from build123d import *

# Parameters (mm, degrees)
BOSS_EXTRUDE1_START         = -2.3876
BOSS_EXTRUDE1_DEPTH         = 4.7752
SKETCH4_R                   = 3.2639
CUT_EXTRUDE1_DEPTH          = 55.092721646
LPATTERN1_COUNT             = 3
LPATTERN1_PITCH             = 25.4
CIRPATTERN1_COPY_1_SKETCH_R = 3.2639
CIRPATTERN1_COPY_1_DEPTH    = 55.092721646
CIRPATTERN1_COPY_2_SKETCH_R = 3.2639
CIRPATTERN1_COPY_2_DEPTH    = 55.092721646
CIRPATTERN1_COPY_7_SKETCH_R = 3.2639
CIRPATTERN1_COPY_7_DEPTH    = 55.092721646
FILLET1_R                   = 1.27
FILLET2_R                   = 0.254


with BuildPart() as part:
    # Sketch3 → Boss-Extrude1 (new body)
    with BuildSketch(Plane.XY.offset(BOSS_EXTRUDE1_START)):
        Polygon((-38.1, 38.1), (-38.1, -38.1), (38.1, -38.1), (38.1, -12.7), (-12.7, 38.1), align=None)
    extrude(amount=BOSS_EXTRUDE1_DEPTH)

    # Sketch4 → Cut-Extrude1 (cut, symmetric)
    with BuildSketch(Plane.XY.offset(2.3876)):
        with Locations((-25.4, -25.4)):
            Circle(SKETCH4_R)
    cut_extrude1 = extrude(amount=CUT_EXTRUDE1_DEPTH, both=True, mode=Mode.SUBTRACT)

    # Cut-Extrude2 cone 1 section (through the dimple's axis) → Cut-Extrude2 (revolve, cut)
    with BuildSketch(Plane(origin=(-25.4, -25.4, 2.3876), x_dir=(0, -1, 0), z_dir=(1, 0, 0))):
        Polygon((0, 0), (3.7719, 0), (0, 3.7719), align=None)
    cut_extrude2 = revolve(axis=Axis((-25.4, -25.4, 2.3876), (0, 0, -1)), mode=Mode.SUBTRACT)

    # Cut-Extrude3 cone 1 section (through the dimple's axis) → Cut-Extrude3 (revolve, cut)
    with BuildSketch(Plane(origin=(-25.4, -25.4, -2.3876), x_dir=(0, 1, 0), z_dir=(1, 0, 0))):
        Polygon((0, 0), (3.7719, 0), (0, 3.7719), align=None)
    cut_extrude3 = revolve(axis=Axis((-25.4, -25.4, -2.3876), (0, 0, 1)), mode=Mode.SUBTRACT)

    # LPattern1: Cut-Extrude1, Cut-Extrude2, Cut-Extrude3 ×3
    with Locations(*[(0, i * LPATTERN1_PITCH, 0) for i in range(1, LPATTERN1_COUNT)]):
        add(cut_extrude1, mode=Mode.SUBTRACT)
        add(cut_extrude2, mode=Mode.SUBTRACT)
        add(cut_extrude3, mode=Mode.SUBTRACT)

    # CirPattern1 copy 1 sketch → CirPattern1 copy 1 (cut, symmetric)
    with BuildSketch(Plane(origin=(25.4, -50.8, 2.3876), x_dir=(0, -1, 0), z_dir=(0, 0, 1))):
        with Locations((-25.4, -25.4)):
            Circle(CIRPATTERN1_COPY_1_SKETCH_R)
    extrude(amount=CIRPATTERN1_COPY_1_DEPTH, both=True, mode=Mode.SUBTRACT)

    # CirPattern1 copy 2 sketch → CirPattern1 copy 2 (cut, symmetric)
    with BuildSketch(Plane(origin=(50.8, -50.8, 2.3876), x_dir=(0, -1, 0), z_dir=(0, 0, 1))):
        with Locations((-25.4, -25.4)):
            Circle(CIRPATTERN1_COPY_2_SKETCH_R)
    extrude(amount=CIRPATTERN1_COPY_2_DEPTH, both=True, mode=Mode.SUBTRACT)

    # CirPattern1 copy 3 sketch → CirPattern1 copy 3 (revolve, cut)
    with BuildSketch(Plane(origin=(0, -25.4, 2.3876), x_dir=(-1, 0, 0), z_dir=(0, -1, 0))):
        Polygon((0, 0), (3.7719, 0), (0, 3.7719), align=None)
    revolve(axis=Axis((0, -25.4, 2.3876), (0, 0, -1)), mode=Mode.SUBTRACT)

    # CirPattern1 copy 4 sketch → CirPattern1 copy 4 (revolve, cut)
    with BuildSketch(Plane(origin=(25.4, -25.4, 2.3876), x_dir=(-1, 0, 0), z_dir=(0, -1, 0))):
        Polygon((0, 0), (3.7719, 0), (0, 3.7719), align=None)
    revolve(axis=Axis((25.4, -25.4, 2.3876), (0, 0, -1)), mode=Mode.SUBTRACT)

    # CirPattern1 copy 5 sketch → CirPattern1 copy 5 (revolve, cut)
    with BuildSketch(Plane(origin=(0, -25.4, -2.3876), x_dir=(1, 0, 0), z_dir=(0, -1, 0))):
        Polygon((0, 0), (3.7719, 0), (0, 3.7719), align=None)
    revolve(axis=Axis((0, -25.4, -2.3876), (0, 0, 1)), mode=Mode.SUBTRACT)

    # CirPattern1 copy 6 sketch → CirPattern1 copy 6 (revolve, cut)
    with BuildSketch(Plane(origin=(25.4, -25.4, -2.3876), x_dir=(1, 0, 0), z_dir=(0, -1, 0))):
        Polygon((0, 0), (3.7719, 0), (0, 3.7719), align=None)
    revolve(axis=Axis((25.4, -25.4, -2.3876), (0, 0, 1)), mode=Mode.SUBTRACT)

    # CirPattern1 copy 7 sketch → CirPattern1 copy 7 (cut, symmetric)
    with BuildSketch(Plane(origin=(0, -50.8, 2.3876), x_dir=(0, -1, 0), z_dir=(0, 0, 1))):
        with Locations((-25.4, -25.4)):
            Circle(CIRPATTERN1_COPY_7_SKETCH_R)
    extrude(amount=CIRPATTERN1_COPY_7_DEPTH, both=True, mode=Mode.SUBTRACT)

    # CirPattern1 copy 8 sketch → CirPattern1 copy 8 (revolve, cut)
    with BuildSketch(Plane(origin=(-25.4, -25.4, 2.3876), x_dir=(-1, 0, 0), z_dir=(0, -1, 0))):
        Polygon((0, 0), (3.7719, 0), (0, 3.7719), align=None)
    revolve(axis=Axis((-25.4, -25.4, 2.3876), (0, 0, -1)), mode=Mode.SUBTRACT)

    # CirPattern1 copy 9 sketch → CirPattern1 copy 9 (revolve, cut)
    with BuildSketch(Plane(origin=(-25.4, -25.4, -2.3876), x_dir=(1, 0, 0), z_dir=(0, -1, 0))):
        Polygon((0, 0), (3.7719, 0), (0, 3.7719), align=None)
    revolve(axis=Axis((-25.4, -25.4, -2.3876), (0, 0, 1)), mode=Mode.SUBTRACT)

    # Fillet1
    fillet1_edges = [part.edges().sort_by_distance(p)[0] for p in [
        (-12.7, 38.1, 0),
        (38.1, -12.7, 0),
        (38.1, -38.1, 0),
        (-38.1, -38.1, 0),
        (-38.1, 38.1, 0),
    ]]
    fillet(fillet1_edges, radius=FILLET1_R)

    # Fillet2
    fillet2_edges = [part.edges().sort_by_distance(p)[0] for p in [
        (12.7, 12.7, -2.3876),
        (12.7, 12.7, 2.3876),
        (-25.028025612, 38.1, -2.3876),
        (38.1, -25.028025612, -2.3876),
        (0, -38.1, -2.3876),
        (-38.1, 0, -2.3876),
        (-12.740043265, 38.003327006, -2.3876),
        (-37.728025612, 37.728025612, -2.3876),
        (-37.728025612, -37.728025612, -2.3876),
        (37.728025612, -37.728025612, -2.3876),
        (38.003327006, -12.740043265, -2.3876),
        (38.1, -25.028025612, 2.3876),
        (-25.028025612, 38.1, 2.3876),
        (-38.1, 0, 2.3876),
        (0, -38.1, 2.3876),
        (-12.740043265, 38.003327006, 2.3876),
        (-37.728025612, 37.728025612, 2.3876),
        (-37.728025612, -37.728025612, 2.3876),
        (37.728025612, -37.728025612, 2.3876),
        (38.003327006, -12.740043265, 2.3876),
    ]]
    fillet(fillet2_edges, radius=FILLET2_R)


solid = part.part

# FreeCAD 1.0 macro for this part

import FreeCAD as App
import Part
import Sketcher

V = App.Vector
Q = App.Units.Quantity


def edges_at(feature, points):
    """Names of the edges that pass closest to the given points."""
    edges = feature.Shape.Edges
    near = lambda p: min(range(len(edges)), key=lambda i: edges[i].distToShape(Part.Vertex(*p))[0])
    return sorted({f"Edge{near(p) + 1}" for p in points})

doc = App.newDocument("Part")
body = doc.addObject("PartDesign::Body", "Body")

sketch1 = body.newObject("Sketcher::SketchObject", "Sketch")
sketch1.AttachmentSupport = (doc.getObject("XY_Plane"), [""])
sketch1.MapMode = "FlatFace"
sketch1.AttachmentOffset = App.Placement(V(0, 0, -0.094 * 25.4), App.Rotation())
sketch1.addGeometry([
    Part.LineSegment(V(-38, 38, 0), V(-38, -38, 0)),
    Part.LineSegment(V(-38, -38, 0), V(38, -38, 0)),
    Part.LineSegment(V(38, -38, 0), V(38, -13, 0)),
    Part.LineSegment(V(38, -13, 0), V(-13, 38, 0)),
    Part.LineSegment(V(-13, 38, 0), V(-38, 38, 0)),
], False)
sketch1.addConstraint([
    Sketcher.Constraint("Coincident", 0, 2, 1, 1),
    Sketcher.Constraint("Coincident", 1, 2, 2, 1),
    Sketcher.Constraint("Coincident", 2, 2, 3, 1),
    Sketcher.Constraint("Coincident", 3, 2, 4, 1),
    Sketcher.Constraint("Coincident", 4, 2, 0, 1),
    Sketcher.Constraint("Vertical", 0),
    Sketcher.Constraint("Horizontal", 1),
    Sketcher.Constraint("Vertical", 2),
    Sketcher.Constraint("Horizontal", 4),
    Sketcher.Constraint("Symmetric", 1, 2, 4, 2, -1, 1),
    Sketcher.Constraint("Equal", 1, 0),
    Sketcher.Constraint("Equal", 4, 2),
    Sketcher.Constraint("DistanceX", 1, 1, 1, 2, Q("3 in")),
    Sketcher.Constraint("DistanceX", 4, 2, 4, 1, Q("1 in")),
])
pad1 = body.newObject("PartDesign::Pad", "Pad")
pad1.Profile = sketch1
pad1.Length = Q("0.188 in")

sketch2 = body.newObject("Sketcher::SketchObject", "Sketch001")
sketch2.AttachmentSupport = (doc.getObject("XY_Plane"), [""])
sketch2.MapMode = "FlatFace"
sketch2.AttachmentOffset = App.Placement(V(0, 0, 0.094 * 25.4), App.Rotation())
sketch2.addGeometry(Part.Circle(V(-25.4, -25.4, 0), V(0, 0, 1), 3.3), False)
sketch2.addConstraint([
    Sketcher.Constraint("Diameter", 0, Q("0.257 in")),
    Sketcher.Constraint("DistanceX", 0, 3, -1, 1, Q("1 in")),
    Sketcher.Constraint("DistanceY", 0, 3, -1, 1, Q("1 in")),
])
pocket1 = body.newObject("PartDesign::Pocket", "Pocket")
pocket1.Profile = sketch2
pocket1.Length = 110.185443
pocket1.Midplane = True

sketch3 = body.newObject("Sketcher::SketchObject", "Sketch002")
sketch3.AttachmentSupport = (doc.getObject("YZ_Plane"), [""])
sketch3.MapMode = "FlatFace"
sketch3.AttachmentOffset = App.Placement(V(0, 0, -1 * 25.4), App.Rotation())
sketch3.addGeometry([
    Part.LineSegment(V(-25.4, 2.4, 0), V(-29.2, 2.4, 0)),
    Part.LineSegment(V(-29.2, 2.4, 0), V(-25.4, -1.4, 0)),
    Part.LineSegment(V(-25.4, -1.4, 0), V(-25.4, 2.4, 0)),
], False)
sketch3.addGeometry(Part.LineSegment(V(-25.4, 2.4, 0), V(-25.4, -1.4, 0)), True)
sketch3.addConstraint([
    Sketcher.Constraint("Coincident", 0, 2, 1, 1),
    Sketcher.Constraint("Coincident", 1, 2, 2, 1),
    Sketcher.Constraint("Coincident", 2, 2, 0, 1),
    Sketcher.Constraint("Horizontal", 0),
    Sketcher.Constraint("Vertical", 2),
    Sketcher.Constraint("Vertical", 3),
    Sketcher.Constraint("Coincident", 3, 1, 2, 2),
    Sketcher.Constraint("Equal", 0, 2),
    Sketcher.Constraint("Equal", 2, 3),
    Sketcher.Constraint("DistanceX", 1, 2, -1, 1, Q("1 in")),
    Sketcher.Constraint("DistanceX", 0, 2, 0, 1, Q("0.1485 in")),
    Sketcher.Constraint("DistanceY", -1, 1, 0, 2, Q("0.094 in")),
])
groove = body.newObject("PartDesign::Groove", "Groove")
groove.Profile = sketch3
groove.ReferenceAxis = (sketch3, ["Axis0"])
groove.Angle = 360

sketch4 = body.newObject("Sketcher::SketchObject", "Sketch003")
sketch4.AttachmentSupport = (doc.getObject("YZ_Plane"), [""])
sketch4.MapMode = "FlatFace"
sketch4.AttachmentOffset = App.Placement(V(0, 0, -1 * 25.4), App.Rotation())
sketch4.addGeometry([
    Part.LineSegment(V(-25.4, -2.4, 0), V(-21.6, -2.4, 0)),
    Part.LineSegment(V(-21.6, -2.4, 0), V(-25.4, 1.4, 0)),
    Part.LineSegment(V(-25.4, 1.4, 0), V(-25.4, -2.4, 0)),
], False)
sketch4.addGeometry(Part.LineSegment(V(-25.4, -2.4, 0), V(-25.4, 1.4, 0)), True)
sketch4.addConstraint([
    Sketcher.Constraint("Coincident", 0, 2, 1, 1),
    Sketcher.Constraint("Coincident", 1, 2, 2, 1),
    Sketcher.Constraint("Coincident", 2, 2, 0, 1),
    Sketcher.Constraint("Horizontal", 0),
    Sketcher.Constraint("Vertical", 2),
    Sketcher.Constraint("Vertical", 3),
    Sketcher.Constraint("Coincident", 3, 1, 2, 2),
    Sketcher.Constraint("Equal", 0, 2),
    Sketcher.Constraint("Equal", 2, 3),
    Sketcher.Constraint("DistanceX", 1, 2, -1, 1, Q("1 in")),
    Sketcher.Constraint("DistanceX", 0, 1, 0, 2, Q("0.1485 in")),
    Sketcher.Constraint("DistanceY", 0, 2, -1, 1, Q("0.094 in")),
])
groove2 = body.newObject("PartDesign::Groove", "Groove001")
groove2.Profile = sketch4
groove2.ReferenceAxis = (sketch4, ["Axis0"])
groove2.Angle = 360
doc.recompute()

linearpattern = body.newObject("PartDesign::LinearPattern", "LinearPattern")
linearpattern.Originals = [pocket1, groove, groove2]
linearpattern.Direction = (doc.getObject("Y_Axis"), [""])
linearpattern.Mode = "offset"
linearpattern.Offset = Q("1 in")
linearpattern.Occurrences = 3
body.Tip = linearpattern

sketch5 = body.newObject("Sketcher::SketchObject", "Sketch004")
sketch5.AttachmentSupport = (doc.getObject("XY_Plane"), [""])
sketch5.MapMode = "FlatFace"
sketch5.AttachmentOffset = App.Placement(V(0, 0, 0.094 * 25.4), App.Rotation())
sketch5.addGeometry(Part.Circle(V(0, -25.4, 0), V(0, 0, 1), 3.3), False)
sketch5.addConstraint([
    Sketcher.Constraint("PointOnObject", 0, 3, -2),
    Sketcher.Constraint("Diameter", 0, Q("0.257 in")),
    Sketcher.Constraint("DistanceY", 0, 3, -1, 1, Q("1 in")),
])
pocket2 = body.newObject("PartDesign::Pocket", "Pocket001")
pocket2.Profile = sketch5
pocket2.Length = 110.185443
pocket2.Midplane = True

sketch6 = body.newObject("Sketcher::SketchObject", "Sketch005")
sketch6.AttachmentSupport = (doc.getObject("XY_Plane"), [""])
sketch6.MapMode = "FlatFace"
sketch6.AttachmentOffset = App.Placement(V(0, 0, 0.094 * 25.4), App.Rotation())
sketch6.addGeometry(Part.Circle(V(25.4, -25.4, 0), V(0, 0, 1), 3.3), False)
sketch6.addConstraint([
    Sketcher.Constraint("Diameter", 0, Q("0.257 in")),
    Sketcher.Constraint("DistanceX", -1, 1, 0, 3, Q("1 in")),
    Sketcher.Constraint("DistanceY", 0, 3, -1, 1, Q("1 in")),
])
pocket3 = body.newObject("PartDesign::Pocket", "Pocket002")
pocket3.Profile = sketch6
pocket3.Length = 110.185443
pocket3.Midplane = True

sketch7 = body.newObject("Sketcher::SketchObject", "Sketch006")
sketch7.AttachmentSupport = (doc.getObject("XZ_Plane"), [""])
sketch7.MapMode = "FlatFace"
sketch7.AttachmentOffset = App.Placement(V(0, 0, 1 * 25.4), App.Rotation())
sketch7.addGeometry([
    Part.LineSegment(V(0, 2.4, 0), V(-3.8, 2.4, 0)),
    Part.LineSegment(V(-3.8, 2.4, 0), V(0, -1.4, 0)),
    Part.LineSegment(V(0, -1.4, 0), V(0, 2.4, 0)),
], False)
sketch7.addConstraint([
    Sketcher.Constraint("Coincident", 0, 2, 1, 1),
    Sketcher.Constraint("Coincident", 1, 2, 2, 1),
    Sketcher.Constraint("Coincident", 2, 2, 0, 1),
    Sketcher.Constraint("Horizontal", 0),
    Sketcher.Constraint("Vertical", 2),
    Sketcher.Constraint("PointOnObject", 1, 2, -2),
    Sketcher.Constraint("Equal", 0, 2),
    Sketcher.Constraint("DistanceX", 0, 2, 0, 1, Q("0.1485 in")),
    Sketcher.Constraint("DistanceY", -1, 1, 0, 2, Q("0.094 in")),
])
groove3 = body.newObject("PartDesign::Groove", "Groove002")
groove3.Profile = sketch7
groove3.ReferenceAxis = (sketch7, ["V_Axis"])
groove3.Angle = 360

sketch8 = body.newObject("Sketcher::SketchObject", "Sketch007")
sketch8.AttachmentSupport = (doc.getObject("XZ_Plane"), [""])
sketch8.MapMode = "FlatFace"
sketch8.AttachmentOffset = App.Placement(V(0, 0, 1 * 25.4), App.Rotation())
sketch8.addGeometry([
    Part.LineSegment(V(25.4, 2.4, 0), V(21.6, 2.4, 0)),
    Part.LineSegment(V(21.6, 2.4, 0), V(25.4, -1.4, 0)),
    Part.LineSegment(V(25.4, -1.4, 0), V(25.4, 2.4, 0)),
], False)
sketch8.addGeometry(Part.LineSegment(V(25.4, 2.4, 0), V(25.4, -1.4, 0)), True)
sketch8.addConstraint([
    Sketcher.Constraint("Coincident", 0, 2, 1, 1),
    Sketcher.Constraint("Coincident", 1, 2, 2, 1),
    Sketcher.Constraint("Coincident", 2, 2, 0, 1),
    Sketcher.Constraint("Horizontal", 0),
    Sketcher.Constraint("Vertical", 2),
    Sketcher.Constraint("Vertical", 3),
    Sketcher.Constraint("Coincident", 3, 1, 2, 2),
    Sketcher.Constraint("Equal", 0, 2),
    Sketcher.Constraint("Equal", 2, 3),
    Sketcher.Constraint("DistanceX", -1, 1, 1, 2, Q("1 in")),
    Sketcher.Constraint("DistanceX", 0, 2, 0, 1, Q("0.1485 in")),
    Sketcher.Constraint("DistanceY", -1, 1, 0, 2, Q("0.094 in")),
])
groove4 = body.newObject("PartDesign::Groove", "Groove003")
groove4.Profile = sketch8
groove4.ReferenceAxis = (sketch8, ["Axis0"])
groove4.Angle = 360

sketch9 = body.newObject("Sketcher::SketchObject", "Sketch008")
sketch9.AttachmentSupport = (doc.getObject("XZ_Plane"), [""])
sketch9.MapMode = "FlatFace"
sketch9.AttachmentOffset = App.Placement(V(0, 0, 1 * 25.4), App.Rotation())
sketch9.addGeometry([
    Part.LineSegment(V(0, -2.4, 0), V(3.8, -2.4, 0)),
    Part.LineSegment(V(3.8, -2.4, 0), V(0, 1.4, 0)),
    Part.LineSegment(V(0, 1.4, 0), V(0, -2.4, 0)),
], False)
sketch9.addConstraint([
    Sketcher.Constraint("Coincident", 0, 2, 1, 1),
    Sketcher.Constraint("Coincident", 1, 2, 2, 1),
    Sketcher.Constraint("Coincident", 2, 2, 0, 1),
    Sketcher.Constraint("Horizontal", 0),
    Sketcher.Constraint("Vertical", 2),
    Sketcher.Constraint("PointOnObject", 1, 2, -2),
    Sketcher.Constraint("Equal", 0, 2),
    Sketcher.Constraint("DistanceX", 0, 1, 0, 2, Q("0.1485 in")),
    Sketcher.Constraint("DistanceY", 0, 2, -1, 1, Q("0.094 in")),
])
groove5 = body.newObject("PartDesign::Groove", "Groove004")
groove5.Profile = sketch9
groove5.ReferenceAxis = (sketch9, ["V_Axis"])
groove5.Angle = 360

sketch10 = body.newObject("Sketcher::SketchObject", "Sketch009")
sketch10.AttachmentSupport = (doc.getObject("XZ_Plane"), [""])
sketch10.MapMode = "FlatFace"
sketch10.AttachmentOffset = App.Placement(V(0, 0, 1 * 25.4), App.Rotation())
sketch10.addGeometry([
    Part.LineSegment(V(25.4, -2.4, 0), V(29.2, -2.4, 0)),
    Part.LineSegment(V(29.2, -2.4, 0), V(25.4, 1.4, 0)),
    Part.LineSegment(V(25.4, 1.4, 0), V(25.4, -2.4, 0)),
], False)
sketch10.addGeometry(Part.LineSegment(V(25.4, -2.4, 0), V(25.4, 1.4, 0)), True)
sketch10.addConstraint([
    Sketcher.Constraint("Coincident", 0, 2, 1, 1),
    Sketcher.Constraint("Coincident", 1, 2, 2, 1),
    Sketcher.Constraint("Coincident", 2, 2, 0, 1),
    Sketcher.Constraint("Horizontal", 0),
    Sketcher.Constraint("Vertical", 2),
    Sketcher.Constraint("Vertical", 3),
    Sketcher.Constraint("Coincident", 3, 1, 2, 2),
    Sketcher.Constraint("Equal", 0, 2),
    Sketcher.Constraint("Equal", 2, 3),
    Sketcher.Constraint("DistanceX", -1, 1, 1, 2, Q("1 in")),
    Sketcher.Constraint("DistanceX", 0, 1, 0, 2, Q("0.1485 in")),
    Sketcher.Constraint("DistanceY", 0, 2, -1, 1, Q("0.094 in")),
])
groove6 = body.newObject("PartDesign::Groove", "Groove005")
groove6.Profile = sketch10
groove6.ReferenceAxis = (sketch10, ["Axis0"])
groove6.Angle = 360

sketch11 = body.newObject("Sketcher::SketchObject", "Sketch010")
sketch11.AttachmentSupport = (doc.getObject("XY_Plane"), [""])
sketch11.MapMode = "FlatFace"
sketch11.AttachmentOffset = App.Placement(V(0, 0, 0.094 * 25.4), App.Rotation())
sketch11.addGeometry(Part.Circle(V(-25.4, -25.4, 0), V(0, 0, 1), 3.3), False)
sketch11.addConstraint([
    Sketcher.Constraint("Diameter", 0, Q("0.257 in")),
    Sketcher.Constraint("DistanceX", 0, 3, -1, 1, Q("1 in")),
    Sketcher.Constraint("DistanceY", 0, 3, -1, 1, Q("1 in")),
])
pocket4 = body.newObject("PartDesign::Pocket", "Pocket003")
pocket4.Profile = sketch11
pocket4.Length = 110.185443
pocket4.Midplane = True

sketch12 = body.newObject("Sketcher::SketchObject", "Sketch011")
sketch12.AttachmentSupport = (doc.getObject("XZ_Plane"), [""])
sketch12.MapMode = "FlatFace"
sketch12.AttachmentOffset = App.Placement(V(0, 0, 1 * 25.4), App.Rotation())
sketch12.addGeometry([
    Part.LineSegment(V(-25.4, 2.4, 0), V(-29.2, 2.4, 0)),
    Part.LineSegment(V(-29.2, 2.4, 0), V(-25.4, -1.4, 0)),
    Part.LineSegment(V(-25.4, -1.4, 0), V(-25.4, 2.4, 0)),
], False)
sketch12.addGeometry(Part.LineSegment(V(-25.4, 2.4, 0), V(-25.4, -1.4, 0)), True)
sketch12.addConstraint([
    Sketcher.Constraint("Coincident", 0, 2, 1, 1),
    Sketcher.Constraint("Coincident", 1, 2, 2, 1),
    Sketcher.Constraint("Coincident", 2, 2, 0, 1),
    Sketcher.Constraint("Horizontal", 0),
    Sketcher.Constraint("Vertical", 2),
    Sketcher.Constraint("Vertical", 3),
    Sketcher.Constraint("Coincident", 3, 1, 2, 2),
    Sketcher.Constraint("Equal", 0, 2),
    Sketcher.Constraint("Equal", 2, 3),
    Sketcher.Constraint("DistanceX", 1, 2, -1, 1, Q("1 in")),
    Sketcher.Constraint("DistanceX", 0, 2, 0, 1, Q("0.1485 in")),
    Sketcher.Constraint("DistanceY", -1, 1, 0, 2, Q("0.094 in")),
])
groove7 = body.newObject("PartDesign::Groove", "Groove006")
groove7.Profile = sketch12
groove7.ReferenceAxis = (sketch12, ["Axis0"])
groove7.Angle = 360

sketch13 = body.newObject("Sketcher::SketchObject", "Sketch012")
sketch13.AttachmentSupport = (doc.getObject("XZ_Plane"), [""])
sketch13.MapMode = "FlatFace"
sketch13.AttachmentOffset = App.Placement(V(0, 0, 1 * 25.4), App.Rotation())
sketch13.addGeometry([
    Part.LineSegment(V(-25.4, -2.4, 0), V(-21.6, -2.4, 0)),
    Part.LineSegment(V(-21.6, -2.4, 0), V(-25.4, 1.4, 0)),
    Part.LineSegment(V(-25.4, 1.4, 0), V(-25.4, -2.4, 0)),
], False)
sketch13.addGeometry(Part.LineSegment(V(-25.4, -2.4, 0), V(-25.4, 1.4, 0)), True)
sketch13.addConstraint([
    Sketcher.Constraint("Coincident", 0, 2, 1, 1),
    Sketcher.Constraint("Coincident", 1, 2, 2, 1),
    Sketcher.Constraint("Coincident", 2, 2, 0, 1),
    Sketcher.Constraint("Horizontal", 0),
    Sketcher.Constraint("Vertical", 2),
    Sketcher.Constraint("Vertical", 3),
    Sketcher.Constraint("Coincident", 3, 1, 2, 2),
    Sketcher.Constraint("Equal", 0, 2),
    Sketcher.Constraint("Equal", 2, 3),
    Sketcher.Constraint("DistanceX", 1, 2, -1, 1, Q("1 in")),
    Sketcher.Constraint("DistanceX", 0, 1, 0, 2, Q("0.1485 in")),
    Sketcher.Constraint("DistanceY", 0, 2, -1, 1, Q("0.094 in")),
])
groove8 = body.newObject("PartDesign::Groove", "Groove007")
groove8.Profile = sketch13
groove8.ReferenceAxis = (sketch13, ["Axis0"])
groove8.Angle = 360
doc.recompute()

fillet = body.newObject("PartDesign::Fillet", "Fillet")
fillet.Base = (groove8, edges_at(groove8, [
    (-12.7, 38.1, 0),
    (38.1, -12.7, 0),
    (38.1, -38.1, 0),
    (-38.1, -38.1, 0),
    (-38.1, 38.1, 0),
]))
fillet.Radius = Q("0.05 in")
doc.recompute()

fillet2 = body.newObject("PartDesign::Fillet", "Fillet001")
fillet2.Base = (fillet, edges_at(fillet, [
    (12.7, 12.7, -2.388),
    (12.7, 12.7, 2.388),
    (-25.028, 38.1, -2.388),
    (38.1, -25.028, -2.388),
    (0, -38.1, -2.388),
    (-38.1, 0, -2.388),
    (-12.74, 38.003, -2.388),
    (-37.728, 37.728, -2.388),
    (-37.728, -37.728, -2.388),
    (37.728, -37.728, -2.388),
    (38.003, -12.74, -2.388),
    (38.1, -25.028, 2.388),
    (-25.028, 38.1, 2.388),
    (-38.1, 0, 2.388),
    (0, -38.1, 2.388),
    (-12.74, 38.003, 2.388),
    (-37.728, 37.728, 2.388),
    (-37.728, -37.728, 2.388),
    (37.728, -37.728, 2.388),
    (38.003, -12.74, 2.388),
]))
fillet2.Radius = Q("0.01 in")

doc.recompute()
